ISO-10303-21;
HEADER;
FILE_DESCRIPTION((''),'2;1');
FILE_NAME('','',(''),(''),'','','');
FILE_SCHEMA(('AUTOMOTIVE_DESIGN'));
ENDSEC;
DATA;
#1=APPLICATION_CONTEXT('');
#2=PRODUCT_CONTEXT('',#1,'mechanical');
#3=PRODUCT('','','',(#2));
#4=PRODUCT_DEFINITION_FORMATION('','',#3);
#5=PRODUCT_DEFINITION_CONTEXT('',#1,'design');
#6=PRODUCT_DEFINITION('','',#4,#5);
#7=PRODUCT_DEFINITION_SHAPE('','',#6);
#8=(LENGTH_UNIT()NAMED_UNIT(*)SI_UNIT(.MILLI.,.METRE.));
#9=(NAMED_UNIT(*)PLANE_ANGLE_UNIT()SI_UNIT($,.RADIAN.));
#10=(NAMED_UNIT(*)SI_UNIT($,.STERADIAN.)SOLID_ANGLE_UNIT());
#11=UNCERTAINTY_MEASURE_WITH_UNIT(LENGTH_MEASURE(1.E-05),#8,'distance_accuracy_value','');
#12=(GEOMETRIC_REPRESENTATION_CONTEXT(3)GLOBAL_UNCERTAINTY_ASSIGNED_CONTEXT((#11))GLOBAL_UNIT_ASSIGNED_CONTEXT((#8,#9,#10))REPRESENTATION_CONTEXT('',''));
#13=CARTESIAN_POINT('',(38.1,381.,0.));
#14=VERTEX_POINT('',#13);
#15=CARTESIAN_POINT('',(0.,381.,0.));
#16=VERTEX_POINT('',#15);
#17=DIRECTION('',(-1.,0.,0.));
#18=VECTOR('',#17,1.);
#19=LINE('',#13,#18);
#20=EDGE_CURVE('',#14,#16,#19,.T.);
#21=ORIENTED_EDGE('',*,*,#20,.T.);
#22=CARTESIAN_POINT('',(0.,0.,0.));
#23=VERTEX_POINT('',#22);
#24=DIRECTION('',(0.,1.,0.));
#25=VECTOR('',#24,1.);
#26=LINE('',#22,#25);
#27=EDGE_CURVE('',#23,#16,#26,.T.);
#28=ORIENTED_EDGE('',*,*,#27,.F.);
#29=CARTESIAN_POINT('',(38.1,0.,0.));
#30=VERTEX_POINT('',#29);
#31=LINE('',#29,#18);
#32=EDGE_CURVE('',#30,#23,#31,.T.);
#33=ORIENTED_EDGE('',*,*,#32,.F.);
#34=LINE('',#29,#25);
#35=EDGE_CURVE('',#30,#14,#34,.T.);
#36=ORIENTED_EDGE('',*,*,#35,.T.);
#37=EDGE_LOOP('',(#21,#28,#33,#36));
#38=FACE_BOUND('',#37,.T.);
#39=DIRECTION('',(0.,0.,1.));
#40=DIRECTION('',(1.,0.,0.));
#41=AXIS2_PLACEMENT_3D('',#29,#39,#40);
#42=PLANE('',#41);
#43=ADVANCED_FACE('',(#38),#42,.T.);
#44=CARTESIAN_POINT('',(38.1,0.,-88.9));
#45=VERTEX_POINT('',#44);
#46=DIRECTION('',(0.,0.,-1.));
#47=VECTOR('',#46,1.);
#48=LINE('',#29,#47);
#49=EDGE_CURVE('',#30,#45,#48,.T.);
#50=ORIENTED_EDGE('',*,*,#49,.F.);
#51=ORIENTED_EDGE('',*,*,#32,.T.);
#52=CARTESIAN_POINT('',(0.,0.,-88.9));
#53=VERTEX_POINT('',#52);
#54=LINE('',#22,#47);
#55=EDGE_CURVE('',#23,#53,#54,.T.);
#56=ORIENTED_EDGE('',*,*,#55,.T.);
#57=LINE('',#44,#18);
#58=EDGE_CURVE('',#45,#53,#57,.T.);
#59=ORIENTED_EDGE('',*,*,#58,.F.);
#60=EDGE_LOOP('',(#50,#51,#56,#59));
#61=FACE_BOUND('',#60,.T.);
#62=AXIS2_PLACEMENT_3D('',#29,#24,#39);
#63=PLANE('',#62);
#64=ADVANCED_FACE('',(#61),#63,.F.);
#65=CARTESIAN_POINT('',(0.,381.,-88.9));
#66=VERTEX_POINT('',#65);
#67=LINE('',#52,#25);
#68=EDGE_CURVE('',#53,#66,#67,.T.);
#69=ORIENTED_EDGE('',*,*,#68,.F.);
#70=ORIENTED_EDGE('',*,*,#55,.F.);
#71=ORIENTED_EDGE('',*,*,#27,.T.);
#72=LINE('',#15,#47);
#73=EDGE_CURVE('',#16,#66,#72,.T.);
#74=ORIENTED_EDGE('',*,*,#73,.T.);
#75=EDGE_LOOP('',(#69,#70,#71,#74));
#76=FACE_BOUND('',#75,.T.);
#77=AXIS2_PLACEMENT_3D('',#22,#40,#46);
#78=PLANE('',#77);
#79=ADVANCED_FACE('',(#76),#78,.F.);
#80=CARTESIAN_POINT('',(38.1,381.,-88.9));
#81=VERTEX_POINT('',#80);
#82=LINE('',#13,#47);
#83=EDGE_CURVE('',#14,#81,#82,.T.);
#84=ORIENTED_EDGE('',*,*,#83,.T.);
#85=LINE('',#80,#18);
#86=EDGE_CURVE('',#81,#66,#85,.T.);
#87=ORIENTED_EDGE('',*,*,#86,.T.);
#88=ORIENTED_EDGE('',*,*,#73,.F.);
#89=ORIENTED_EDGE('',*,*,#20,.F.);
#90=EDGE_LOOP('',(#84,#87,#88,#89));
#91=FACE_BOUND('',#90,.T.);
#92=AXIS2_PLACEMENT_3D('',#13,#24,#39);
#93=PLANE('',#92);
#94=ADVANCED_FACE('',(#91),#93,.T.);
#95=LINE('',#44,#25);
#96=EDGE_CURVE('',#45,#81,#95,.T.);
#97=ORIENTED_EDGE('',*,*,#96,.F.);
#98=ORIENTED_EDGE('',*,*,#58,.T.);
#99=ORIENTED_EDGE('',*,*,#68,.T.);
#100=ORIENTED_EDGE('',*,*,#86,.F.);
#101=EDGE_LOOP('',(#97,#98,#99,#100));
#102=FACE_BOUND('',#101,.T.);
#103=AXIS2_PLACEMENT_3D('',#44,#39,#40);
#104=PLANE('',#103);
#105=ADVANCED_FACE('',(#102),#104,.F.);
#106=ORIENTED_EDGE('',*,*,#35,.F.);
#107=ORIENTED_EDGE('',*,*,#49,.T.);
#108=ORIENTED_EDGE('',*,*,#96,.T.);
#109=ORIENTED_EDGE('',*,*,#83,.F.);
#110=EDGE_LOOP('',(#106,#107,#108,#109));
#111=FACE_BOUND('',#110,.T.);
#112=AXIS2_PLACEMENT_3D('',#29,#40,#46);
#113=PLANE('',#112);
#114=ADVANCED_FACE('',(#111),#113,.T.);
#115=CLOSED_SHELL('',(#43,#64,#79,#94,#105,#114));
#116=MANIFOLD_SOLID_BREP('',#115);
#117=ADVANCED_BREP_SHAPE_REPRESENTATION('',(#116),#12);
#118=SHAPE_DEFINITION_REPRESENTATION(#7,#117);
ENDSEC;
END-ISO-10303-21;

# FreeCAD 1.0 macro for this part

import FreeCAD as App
import Part
import Sketcher

V = App.Vector
Q = App.Units.Quantity

doc = App.newDocument("Part")
body = doc.addObject("PartDesign::Body", "Body")

# Sketch on YZ plane
sketch1 = body.newObject("Sketcher::SketchObject", "Sketch")
sketch1.AttachmentSupport = (doc.getObject("YZ_Plane"), [""])
sketch1.MapMode = "FlatFace"
sketch1.addGeometry([
    Part.LineSegment(V(0, 0, 0), V(0, -89, 0)),
    Part.LineSegment(V(0, -89, 0), V(381, -89, 0)),
    Part.LineSegment(V(381, -89, 0), V(381, 0, 0)),
    Part.LineSegment(V(381, 0, 0), V(0, 0, 0)),
], False)
sketch1.addConstraint([
    Sketcher.Constraint("Coincident", 0, 2, 1, 1),
    Sketcher.Constraint("Coincident", 1, 2, 2, 1),
    Sketcher.Constraint("Coincident", 2, 2, 3, 1),
    Sketcher.Constraint("Coincident", 3, 2, 0, 1),
    Sketcher.Constraint("Vertical", 0),
    Sketcher.Constraint("Horizontal", 1),
    Sketcher.Constraint("Vertical", 2),
    Sketcher.Constraint("Horizontal", 3),
    Sketcher.Constraint("Coincident", 3, 2, -1, 1),
    Sketcher.Constraint("DistanceX", 1, 1, 1, 2, Q("15 in")),
    Sketcher.Constraint("DistanceY", 0, 2, 0, 1, Q("3.5 in")),
])
pad1 = body.newObject("PartDesign::Pad", "Pad")
pad1.Profile = sketch1
pad1.Length = Q("1.5 in")

doc.recompute()
